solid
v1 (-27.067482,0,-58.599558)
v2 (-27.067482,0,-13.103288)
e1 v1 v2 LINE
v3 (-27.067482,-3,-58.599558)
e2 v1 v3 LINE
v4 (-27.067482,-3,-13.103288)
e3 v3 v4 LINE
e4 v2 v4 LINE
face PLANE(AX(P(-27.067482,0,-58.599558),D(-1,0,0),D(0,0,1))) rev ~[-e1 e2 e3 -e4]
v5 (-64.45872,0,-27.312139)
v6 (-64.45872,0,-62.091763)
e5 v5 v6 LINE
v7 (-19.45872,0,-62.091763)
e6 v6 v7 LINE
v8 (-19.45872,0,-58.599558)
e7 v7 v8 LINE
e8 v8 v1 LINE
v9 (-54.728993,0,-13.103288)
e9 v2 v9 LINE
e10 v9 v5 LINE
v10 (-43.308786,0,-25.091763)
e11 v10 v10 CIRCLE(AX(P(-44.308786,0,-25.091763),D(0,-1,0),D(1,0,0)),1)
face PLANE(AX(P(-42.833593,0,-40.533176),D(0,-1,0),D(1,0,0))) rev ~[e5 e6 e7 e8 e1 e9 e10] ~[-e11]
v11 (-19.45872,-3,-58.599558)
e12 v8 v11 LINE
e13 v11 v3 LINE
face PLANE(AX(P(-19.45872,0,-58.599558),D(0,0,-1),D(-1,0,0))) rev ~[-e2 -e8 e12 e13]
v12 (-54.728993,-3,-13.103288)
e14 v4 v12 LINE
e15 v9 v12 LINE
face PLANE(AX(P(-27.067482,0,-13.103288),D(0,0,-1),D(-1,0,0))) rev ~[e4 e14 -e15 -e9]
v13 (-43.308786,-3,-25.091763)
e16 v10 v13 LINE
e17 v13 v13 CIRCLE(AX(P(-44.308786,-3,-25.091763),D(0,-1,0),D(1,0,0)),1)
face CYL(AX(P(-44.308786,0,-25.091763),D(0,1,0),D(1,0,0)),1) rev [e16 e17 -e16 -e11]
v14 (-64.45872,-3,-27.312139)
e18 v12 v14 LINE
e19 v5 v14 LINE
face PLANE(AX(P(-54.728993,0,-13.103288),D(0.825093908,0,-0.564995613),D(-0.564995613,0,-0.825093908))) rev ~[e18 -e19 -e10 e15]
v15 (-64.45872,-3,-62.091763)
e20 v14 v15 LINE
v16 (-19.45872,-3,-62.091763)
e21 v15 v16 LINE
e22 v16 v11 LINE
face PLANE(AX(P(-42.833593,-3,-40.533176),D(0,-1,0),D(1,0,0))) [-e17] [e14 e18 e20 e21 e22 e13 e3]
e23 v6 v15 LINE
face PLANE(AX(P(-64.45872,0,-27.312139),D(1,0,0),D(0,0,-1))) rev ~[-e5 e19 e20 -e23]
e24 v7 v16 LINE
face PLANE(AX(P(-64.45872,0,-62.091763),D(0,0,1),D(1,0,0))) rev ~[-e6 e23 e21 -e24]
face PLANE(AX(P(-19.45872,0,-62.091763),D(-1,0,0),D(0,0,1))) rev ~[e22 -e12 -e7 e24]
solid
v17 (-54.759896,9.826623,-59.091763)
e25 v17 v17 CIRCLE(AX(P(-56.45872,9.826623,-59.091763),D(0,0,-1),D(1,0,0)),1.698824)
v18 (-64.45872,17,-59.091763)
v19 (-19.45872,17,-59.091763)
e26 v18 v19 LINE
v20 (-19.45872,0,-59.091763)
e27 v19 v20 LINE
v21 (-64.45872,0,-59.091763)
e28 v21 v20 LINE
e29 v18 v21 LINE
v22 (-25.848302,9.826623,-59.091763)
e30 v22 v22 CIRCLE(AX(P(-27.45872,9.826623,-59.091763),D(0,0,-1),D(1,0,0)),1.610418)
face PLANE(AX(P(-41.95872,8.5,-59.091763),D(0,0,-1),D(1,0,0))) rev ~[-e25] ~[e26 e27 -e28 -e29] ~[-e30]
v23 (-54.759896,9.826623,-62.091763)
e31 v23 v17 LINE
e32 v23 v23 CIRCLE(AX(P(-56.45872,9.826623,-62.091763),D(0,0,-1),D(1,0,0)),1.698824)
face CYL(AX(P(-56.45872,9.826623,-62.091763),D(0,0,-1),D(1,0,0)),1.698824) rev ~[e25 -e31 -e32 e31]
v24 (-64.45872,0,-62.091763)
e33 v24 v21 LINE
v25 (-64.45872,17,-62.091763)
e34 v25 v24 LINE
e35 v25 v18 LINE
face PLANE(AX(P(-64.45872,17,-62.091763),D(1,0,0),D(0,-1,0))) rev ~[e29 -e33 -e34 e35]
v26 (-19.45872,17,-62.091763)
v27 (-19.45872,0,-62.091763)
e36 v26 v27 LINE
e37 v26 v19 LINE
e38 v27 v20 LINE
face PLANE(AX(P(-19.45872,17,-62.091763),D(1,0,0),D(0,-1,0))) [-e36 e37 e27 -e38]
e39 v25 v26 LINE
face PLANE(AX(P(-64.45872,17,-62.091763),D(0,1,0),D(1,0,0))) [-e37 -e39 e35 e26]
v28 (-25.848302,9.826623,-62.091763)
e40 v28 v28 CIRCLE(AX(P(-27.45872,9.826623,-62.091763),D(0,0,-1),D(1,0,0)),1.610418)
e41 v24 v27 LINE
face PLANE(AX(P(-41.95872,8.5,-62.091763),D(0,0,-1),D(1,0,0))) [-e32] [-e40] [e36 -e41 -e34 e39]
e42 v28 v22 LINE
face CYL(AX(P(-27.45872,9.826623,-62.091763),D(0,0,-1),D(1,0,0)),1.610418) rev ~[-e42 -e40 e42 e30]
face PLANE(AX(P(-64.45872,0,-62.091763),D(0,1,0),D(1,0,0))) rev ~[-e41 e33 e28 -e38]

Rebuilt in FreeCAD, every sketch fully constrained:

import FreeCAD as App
import Part
import Sketcher
from FreeCAD import Vector


def add_polygon(sketch, points):
    """Adds a closed chain of lines whose ends are joined by coincident constraints."""
    first, n = sketch.GeometryCount, len(points)
    for a, b in zip(points, points[1:] + points[:1]):
        sketch.addGeometry(Part.LineSegment(App.Vector(*a, 0), App.Vector(*b, 0)), False)
    for i in range(n):
        sketch.addConstraint(Sketcher.Constraint("Coincident", first + i, 2, first + (i + 1) % n, 1))

doc = App.newDocument("Part")
body = doc.addObject("PartDesign::Body", "Body")

# Sketch on XZ plane
sketch1 = body.newObject("Sketcher::SketchObject", "Sketch")
sketch1.AttachmentSupport = (doc.getObject("XZ_Plane"), [""])
sketch1.MapMode = "FlatFace"
add_polygon(sketch1, [(-64.5, -27.3), (-64.5, -62.1), (-19.5, -62.1), (-19.5, -58.6), (-27.1, -58.6), (-27.1, -13.1), (-54.7, -13.1)])  # lines 0-6
sketch1.addGeometry(Part.Circle(Vector(-44.3, -25.1, 0), Vector(0, 0, 1), 1), False)  # 7
sketch1.addConstraint([
    Sketcher.Constraint("Vertical", 0),
    Sketcher.Constraint("Horizontal", 1),
    Sketcher.Constraint("Vertical", 2),
    Sketcher.Constraint("Horizontal", 3),
    Sketcher.Constraint("Vertical", 4),
    Sketcher.Constraint("Horizontal", 5),
    Sketcher.Constraint("Diameter", 7, 2.0),
    Sketcher.Constraint("DistanceX", 1, 1, 1, 2, 45.0),
    Sketcher.Constraint("DistanceY", 0, 2, 7, 3, 37.0),
    Sketcher.Constraint("DistanceX", 3, 2, 3, 1, 7.608762),
    Sketcher.Constraint("DistanceX", 5, 2, 5, 1, 27.661511),
    Sketcher.Constraint("DistanceY", 4, 1, 4, 2, 45.49627),
    Sketcher.Constraint("Distance", 6, 17.220889),
    Sketcher.Constraint("DistanceY", 0, 2, 0, 1, 34.779624),
    Sketcher.Constraint("DistanceX", 0, 2, -1, 1, 64.45872),
    Sketcher.Constraint("DistanceY", 2, 2, -1, 1, 58.599558),
    Sketcher.Constraint("DistanceX", 7, 3, -1, 1, 44.308786),
])
pad1 = body.newObject("PartDesign::Pad", "Pad")
pad1.Profile = sketch1
pad1.Length = 3
body2 = doc.addObject("PartDesign::Body", "Body001")

# Sketch on XY plane
sketch2 = body2.newObject("Sketcher::SketchObject", "Sketch001")
sketch2.AttachmentSupport = (doc.getObject("XY_Plane001"), [""])
sketch2.MapMode = "FlatFace"
sketch2.AttachmentOffset = App.Placement(Vector(0, 0, -62.091763), App.Rotation())
add_polygon(sketch2, [(-64.5, 0), (-64.5, 17), (-19.5, 17), (-19.5, 0)])  # lines 0-3
sketch2.addGeometry(Part.Circle(Vector(-56.5, 9.8, 0), Vector(0, 0, 1), 1.7), False)  # 4
sketch2.addGeometry(Part.Circle(Vector(-27.5, 9.8, 0), Vector(0, 0, 1), 1.6), False)  # 5
sketch2.addConstraint([
    Sketcher.Constraint("Vertical", 0),
    Sketcher.Constraint("Horizontal", 1),
    Sketcher.Constraint("Vertical", 2),
    Sketcher.Constraint("Horizontal", 3),
    Sketcher.Constraint("PointOnObject", 2, 2, -1),
    Sketcher.Constraint("Horizontal", 4, 3, 5, 3),
    Sketcher.Constraint("DistanceX", 1, 1, 1, 2, 45.0),
    Sketcher.Constraint("DistanceY", 0, 1, 0, 2, 17.0),
    Sketcher.Constraint("DistanceX", 4, 3, 5, 3, 29.0),
    Sketcher.Constraint("DistanceX", 0, 2, 4, 3, 8.0),
    Sketcher.Constraint("Diameter", 4, 3.397648),
    Sketcher.Constraint("Diameter", 5, 3.220836),
    Sketcher.Constraint("DistanceX", 4, 3, -1, 1, 56.45872),
    Sketcher.Constraint("DistanceY", -1, 1, 4, 3, 9.826623),
])
pad2 = body2.newObject("PartDesign::Pad", "Pad001")
pad2.Profile = sketch2
pad2.Length = 3

doc.recompute()
